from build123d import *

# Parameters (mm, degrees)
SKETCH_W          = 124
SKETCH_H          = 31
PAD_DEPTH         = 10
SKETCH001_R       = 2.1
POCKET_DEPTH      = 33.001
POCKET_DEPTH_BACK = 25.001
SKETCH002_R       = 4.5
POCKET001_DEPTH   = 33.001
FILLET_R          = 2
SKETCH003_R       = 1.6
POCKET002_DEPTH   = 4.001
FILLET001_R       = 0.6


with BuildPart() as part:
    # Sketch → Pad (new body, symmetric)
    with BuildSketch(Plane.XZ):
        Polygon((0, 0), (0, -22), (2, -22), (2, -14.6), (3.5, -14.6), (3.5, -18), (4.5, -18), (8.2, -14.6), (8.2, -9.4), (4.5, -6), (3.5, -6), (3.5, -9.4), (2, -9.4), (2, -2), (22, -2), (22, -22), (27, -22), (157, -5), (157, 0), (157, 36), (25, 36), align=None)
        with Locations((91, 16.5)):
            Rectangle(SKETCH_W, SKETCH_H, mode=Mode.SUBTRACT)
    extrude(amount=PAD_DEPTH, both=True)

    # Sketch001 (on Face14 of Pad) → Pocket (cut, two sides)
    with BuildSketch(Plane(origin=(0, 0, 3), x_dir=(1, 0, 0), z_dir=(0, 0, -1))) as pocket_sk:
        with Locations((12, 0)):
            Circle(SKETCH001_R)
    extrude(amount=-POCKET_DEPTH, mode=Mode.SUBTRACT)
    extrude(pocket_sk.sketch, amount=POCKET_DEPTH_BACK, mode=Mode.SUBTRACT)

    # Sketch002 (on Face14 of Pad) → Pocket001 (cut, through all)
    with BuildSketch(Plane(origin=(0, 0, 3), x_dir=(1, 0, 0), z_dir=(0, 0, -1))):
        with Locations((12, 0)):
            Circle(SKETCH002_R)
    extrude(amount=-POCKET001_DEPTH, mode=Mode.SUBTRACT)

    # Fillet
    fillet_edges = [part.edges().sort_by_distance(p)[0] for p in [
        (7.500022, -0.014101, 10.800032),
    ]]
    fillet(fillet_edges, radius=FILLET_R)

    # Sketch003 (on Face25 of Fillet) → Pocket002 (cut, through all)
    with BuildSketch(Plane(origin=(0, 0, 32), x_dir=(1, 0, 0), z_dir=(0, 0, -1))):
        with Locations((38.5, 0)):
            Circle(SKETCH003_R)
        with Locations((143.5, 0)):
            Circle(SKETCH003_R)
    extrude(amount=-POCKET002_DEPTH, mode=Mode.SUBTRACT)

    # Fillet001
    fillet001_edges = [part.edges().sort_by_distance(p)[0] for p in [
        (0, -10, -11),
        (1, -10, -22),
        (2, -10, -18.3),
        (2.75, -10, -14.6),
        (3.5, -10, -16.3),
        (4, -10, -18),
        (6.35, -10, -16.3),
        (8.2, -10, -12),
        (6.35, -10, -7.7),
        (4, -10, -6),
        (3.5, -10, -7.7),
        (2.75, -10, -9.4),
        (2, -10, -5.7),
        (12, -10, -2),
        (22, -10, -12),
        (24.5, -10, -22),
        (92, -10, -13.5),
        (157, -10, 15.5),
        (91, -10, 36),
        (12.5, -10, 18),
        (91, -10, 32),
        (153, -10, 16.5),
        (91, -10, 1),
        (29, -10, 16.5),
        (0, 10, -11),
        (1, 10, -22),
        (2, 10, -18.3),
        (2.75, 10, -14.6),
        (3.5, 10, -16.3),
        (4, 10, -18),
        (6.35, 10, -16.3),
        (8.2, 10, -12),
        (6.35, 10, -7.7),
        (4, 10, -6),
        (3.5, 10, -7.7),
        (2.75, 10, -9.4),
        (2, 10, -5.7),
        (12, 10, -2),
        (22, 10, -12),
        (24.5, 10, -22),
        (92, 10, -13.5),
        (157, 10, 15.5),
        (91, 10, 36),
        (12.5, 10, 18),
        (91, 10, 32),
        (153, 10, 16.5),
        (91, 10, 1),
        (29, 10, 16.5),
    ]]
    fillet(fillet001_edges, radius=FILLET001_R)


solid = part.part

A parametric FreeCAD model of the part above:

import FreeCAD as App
import Part
import Sketcher


def edges_at(feature, points):
    """Names of the edges that pass closest to the given points."""
    edges = feature.Shape.Edges
    near = lambda p: min(range(len(edges)), key=lambda i: edges[i].distToShape(Part.Vertex(*p))[0])
    return sorted({f"Edge{near(p) + 1}" for p in points})


def add_polygon(sketch, points):
    """Adds a closed chain of lines whose ends are joined by coincident constraints."""
    first, n = sketch.GeometryCount, len(points)
    for a, b in zip(points, points[1:] + points[:1]):
        sketch.addGeometry(Part.LineSegment(App.Vector(*a, 0), App.Vector(*b, 0)), False)
    for i in range(n):
        sketch.addConstraint(Sketcher.Constraint("Coincident", first + i, 2, first + (i + 1) % n, 1))

doc = App.newDocument("Part")
body = doc.addObject("PartDesign::Body", "Body")

# Sketch on XZ plane
sketch1 = body.newObject("Sketcher::SketchObject", "Sketch")
sketch1.AttachmentSupport = (doc.getObject("XZ_Plane"), [""])
sketch1.MapMode = "FlatFace"
add_polygon(sketch1, [(0, 0), (0, -22), (2, -22), (2, -14.6), (3.5, -14.6), (3.5, -18), (4.5, -18), (8.2, -14.6), (8.2, -9.4), (4.5, -6), (3.5, -6), (3.5, -9.4), (2, -9.4), (2, -2), (22, -2), (22, -22), (27, -22), (157, -5), (157, 36), (25, 36)])  # lines 0-19
add_polygon(sketch1, [(153, 1), (29, 1), (29, 32), (153, 32)])  # lines 20-23
sketch1.addConstraint(Sketcher.Constraint("Vertical", 0))
sketch1.addConstraint(Sketcher.Constraint("Horizontal", 1))
sketch1.addConstraint(Sketcher.Constraint("Vertical", 2))
sketch1.addConstraint(Sketcher.Constraint("Horizontal", 3))
sketch1.addConstraint(Sketcher.Constraint("Vertical", 4))
sketch1.addConstraint(Sketcher.Constraint("Horizontal", 5))
sketch1.addConstraint(Sketcher.Constraint("Vertical", 7))
sketch1.addConstraint(Sketcher.Constraint("Horizontal", 9))
sketch1.addConstraint(Sketcher.Constraint("Vertical", 10))
sketch1.addConstraint(Sketcher.Constraint("Horizontal", 11))
sketch1.addConstraint(Sketcher.Constraint("Vertical", 12))
sketch1.addConstraint(Sketcher.Constraint("Horizontal", 13))
sketch1.addConstraint(Sketcher.Constraint("Vertical", 14))
sketch1.addConstraint(Sketcher.Constraint("Horizontal", 15))
sketch1.addConstraint(Sketcher.Constraint("Vertical", 17))
sketch1.addConstraint(Sketcher.Constraint("Horizontal", 18))
sketch1.addConstraint(Sketcher.Constraint("Horizontal", 20))
sketch1.addConstraint(Sketcher.Constraint("Vertical", 21))
sketch1.addConstraint(Sketcher.Constraint("Horizontal", 22))
sketch1.addConstraint(Sketcher.Constraint("Vertical", 23))
sketch1.addConstraint(Sketcher.Constraint("Coincident", 19, 2, -1, 1))
sketch1.addConstraint(Sketcher.Constraint("Horizontal", 3, 2, 6, 2))
sketch1.addConstraint(Sketcher.Constraint("Horizontal", 7, 2, 10, 2))
sketch1.addConstraint(Sketcher.Constraint("Horizontal", 1, 2, 14, 2))
sketch1.addConstraint(Sketcher.Constraint("Vertical", 5, 2, 8, 2))
sketch1.addConstraint(Sketcher.Constraint("Vertical", 4, 2, 9, 2))
sketch1.addConstraint(Sketcher.Constraint("Vertical", 2, 2, 11, 2))
sketch1.addConstraint(Sketcher.Constraint("Equal", 4, 10))
sketch1.addConstraint(Sketcher.Constraint("Equal", 2, 12))
sketch1.addConstraint(Sketcher.Constraint("Equal", 13, 14))
sketch1.addConstraint(Sketcher.Constraint("DistanceX", 1, 1, 1, 2, 2.0))
sketch1.addConstraint(Sketcher.Constraint("DistanceX", 5, 1, 5, 2, 1.0))
sketch1.addConstraint(Sketcher.Constraint("DistanceX", 13, 1, 13, 2, 20.0))
sketch1.addConstraint(Sketcher.Constraint("DistanceX", 15, 1, 15, 2, 5.0))
sketch1.addConstraint(Sketcher.Constraint("DistanceX", 18, 2, 18, 1, 132.0))
sketch1.addConstraint(Sketcher.Constraint("DistanceX", 20, 2, 20, 1, 124.0))
sketch1.addConstraint(Sketcher.Constraint("DistanceY", 0, 2, 0, 1, 22.0))
sketch1.addConstraint(Sketcher.Constraint("DistanceY", 17, 1, 17, 2, 41.0))
sketch1.addConstraint(Sketcher.Constraint("DistanceY", 21, 1, 21, 2, 31.0))
sketch1.addConstraint(Sketcher.Constraint("DistanceX", 3, 1, 3, 2, 1.5))
sketch1.addConstraint(Sketcher.Constraint("DistanceY", 2, 1, 2, 2, 7.4))
sketch1.addConstraint(Sketcher.Constraint("DistanceY", 4, 2, 4, 1, 3.4))
sketch1.addConstraint(Sketcher.Constraint("DistanceX", -1, 1, 16, 2, 157.0))
sketch1.addConstraint(Sketcher.Constraint("DistanceY", 16, 2, -1, 1, 5.0))
sketch1.addConstraint(Sketcher.Constraint("DistanceX", -1, 1, 20, 2, 29.0))
sketch1.addConstraint(Sketcher.Constraint("DistanceY", -1, 1, 20, 2, 1.0))
sketch1.addConstraint(Sketcher.Constraint("DistanceX", -1, 1, 6, 2, 8.2))
pad1 = body.newObject("PartDesign::Pad", "Pad")
pad1.Profile = sketch1
pad1.Length = 20
pad1.Midplane = True

# Sketch on XY plane
sketch2 = body.newObject("Sketcher::SketchObject", "Sketch001")
sketch2.AttachmentSupport = (doc.getObject("XY_Plane"), [""])
sketch2.MapMode = "FlatFace"
sketch2.AttachmentOffset = App.Placement(App.Vector(0, 0, 3), App.Rotation())
sketch2.addGeometry(Part.Circle(App.Vector(12, 0, 0), App.Vector(0, 0, 1), 2.1), False)
sketch2.addConstraint(Sketcher.Constraint("PointOnObject", 0, 3, -1))
sketch2.addConstraint(Sketcher.Constraint("Diameter", 0, 4.2))
sketch2.addConstraint(Sketcher.Constraint("DistanceX", -1, 1, 0, 3, 12.0))
pocket1 = body.newObject("PartDesign::Pocket", "Pocket")
pocket1.Profile = sketch2
pocket1.Type = "ThroughAll"
pocket1.Midplane = True

# Sketch on XY plane
sketch3 = body.newObject("Sketcher::SketchObject", "Sketch002")
sketch3.AttachmentSupport = (doc.getObject("XY_Plane"), [""])
sketch3.MapMode = "FlatFace"
sketch3.AttachmentOffset = App.Placement(App.Vector(0, 0, 3), App.Rotation())
sketch3.addGeometry(Part.Circle(App.Vector(12, 0, 0), App.Vector(0, 0, 1), 4.5), False)
sketch3.addConstraint(Sketcher.Constraint("PointOnObject", 0, 3, -1))
sketch3.addConstraint(Sketcher.Constraint("Diameter", 0, 9.0))
sketch3.addConstraint(Sketcher.Constraint("DistanceX", -1, 1, 0, 3, 12.0))
pocket2 = body.newObject("PartDesign::Pocket", "Pocket001")
pocket2.Profile = sketch3
pocket2.Type = "ThroughAll"
pocket2.Reversed = True
doc.recompute()

fillet = body.newObject("PartDesign::Fillet", "Fillet")
fillet.Base = (pocket2, edges_at(pocket2, [(7.5, -0.014, 10.8)]))
fillet.Radius = 2

# Sketch on XY plane
sketch4 = body.newObject("Sketcher::SketchObject", "Sketch003")
sketch4.AttachmentSupport = (doc.getObject("XY_Plane"), [""])
sketch4.MapMode = "FlatFace"
sketch4.AttachmentOffset = App.Placement(App.Vector(0, 0, 32), App.Rotation())
sketch4.addGeometry(Part.Circle(App.Vector(38.5, 0, 0), App.Vector(0, 0, 1), 1.6), False)
sketch4.addGeometry(Part.Circle(App.Vector(143.5, 0, 0), App.Vector(0, 0, 1), 1.6), False)
sketch4.addConstraint(Sketcher.Constraint("Equal", 0, 1))
sketch4.addConstraint(Sketcher.Constraint("PointOnObject", 0, 3, -1))
sketch4.addConstraint(Sketcher.Constraint("PointOnObject", 1, 3, -1))
sketch4.addConstraint(Sketcher.Constraint("Diameter", 0, 3.2))
sketch4.addConstraint(Sketcher.Constraint("DistanceX", 0, 3, 1, 3, 105.0))
sketch4.addConstraint(Sketcher.Constraint("DistanceX", -1, 1, 0, 3, 38.5))
pocket3 = body.newObject("PartDesign::Pocket", "Pocket002")
pocket3.Profile = sketch4
pocket3.Type = "ThroughAll"
pocket3.Reversed = True
doc.recompute()

fillet2 = body.newObject("PartDesign::Fillet", "Fillet001")
fillet2.Base = (pocket3, edges_at(pocket3, [
    (0, -10, -11),
    (1, -10, -22),
    (2, -10, -18.3),
    (2.75, -10, -14.6),
    (3.5, -10, -16.3),
    (4, -10, -18),
    (6.35, -10, -16.3),
    (8.2, -10, -12),
    (6.35, -10, -7.7),
    (4, -10, -6),
    (3.5, -10, -7.7),
    (2.75, -10, -9.4),
    (2, -10, -5.7),
    (12, -10, -2),
    (22, -10, -12),
    (24.5, -10, -22),
    (92, -10, -13.5),
    (157, -10, 15.5),
    (91, -10, 36),
    (12.5, -10, 18),
    (91, -10, 32),
    (153, -10, 16.5),
    (91, -10, 1),
    (29, -10, 16.5),
    (0, 10, -11),
    (1, 10, -22),
    (2, 10, -18.3),
    (2.75, 10, -14.6),
    (3.5, 10, -16.3),
    (4, 10, -18),
    (6.35, 10, -16.3),
    (8.2, 10, -12),
    (6.35, 10, -7.7),
    (4, 10, -6),
    (3.5, 10, -7.7),
    (2.75, 10, -9.4),
    (2, 10, -5.7),
    (12, 10, -2),
    (22, 10, -12),
    (24.5, 10, -22),
    (92, 10, -13.5),
    (157, 10, 15.5),
    (91, 10, 36),
    (12.5, 10, 18),
    (91, 10, 32),
    (153, 10, 16.5),
    (91, 10, 1),
    (29, 10, 16.5),
]))
fillet2.Radius = 0.6

doc.recompute()
